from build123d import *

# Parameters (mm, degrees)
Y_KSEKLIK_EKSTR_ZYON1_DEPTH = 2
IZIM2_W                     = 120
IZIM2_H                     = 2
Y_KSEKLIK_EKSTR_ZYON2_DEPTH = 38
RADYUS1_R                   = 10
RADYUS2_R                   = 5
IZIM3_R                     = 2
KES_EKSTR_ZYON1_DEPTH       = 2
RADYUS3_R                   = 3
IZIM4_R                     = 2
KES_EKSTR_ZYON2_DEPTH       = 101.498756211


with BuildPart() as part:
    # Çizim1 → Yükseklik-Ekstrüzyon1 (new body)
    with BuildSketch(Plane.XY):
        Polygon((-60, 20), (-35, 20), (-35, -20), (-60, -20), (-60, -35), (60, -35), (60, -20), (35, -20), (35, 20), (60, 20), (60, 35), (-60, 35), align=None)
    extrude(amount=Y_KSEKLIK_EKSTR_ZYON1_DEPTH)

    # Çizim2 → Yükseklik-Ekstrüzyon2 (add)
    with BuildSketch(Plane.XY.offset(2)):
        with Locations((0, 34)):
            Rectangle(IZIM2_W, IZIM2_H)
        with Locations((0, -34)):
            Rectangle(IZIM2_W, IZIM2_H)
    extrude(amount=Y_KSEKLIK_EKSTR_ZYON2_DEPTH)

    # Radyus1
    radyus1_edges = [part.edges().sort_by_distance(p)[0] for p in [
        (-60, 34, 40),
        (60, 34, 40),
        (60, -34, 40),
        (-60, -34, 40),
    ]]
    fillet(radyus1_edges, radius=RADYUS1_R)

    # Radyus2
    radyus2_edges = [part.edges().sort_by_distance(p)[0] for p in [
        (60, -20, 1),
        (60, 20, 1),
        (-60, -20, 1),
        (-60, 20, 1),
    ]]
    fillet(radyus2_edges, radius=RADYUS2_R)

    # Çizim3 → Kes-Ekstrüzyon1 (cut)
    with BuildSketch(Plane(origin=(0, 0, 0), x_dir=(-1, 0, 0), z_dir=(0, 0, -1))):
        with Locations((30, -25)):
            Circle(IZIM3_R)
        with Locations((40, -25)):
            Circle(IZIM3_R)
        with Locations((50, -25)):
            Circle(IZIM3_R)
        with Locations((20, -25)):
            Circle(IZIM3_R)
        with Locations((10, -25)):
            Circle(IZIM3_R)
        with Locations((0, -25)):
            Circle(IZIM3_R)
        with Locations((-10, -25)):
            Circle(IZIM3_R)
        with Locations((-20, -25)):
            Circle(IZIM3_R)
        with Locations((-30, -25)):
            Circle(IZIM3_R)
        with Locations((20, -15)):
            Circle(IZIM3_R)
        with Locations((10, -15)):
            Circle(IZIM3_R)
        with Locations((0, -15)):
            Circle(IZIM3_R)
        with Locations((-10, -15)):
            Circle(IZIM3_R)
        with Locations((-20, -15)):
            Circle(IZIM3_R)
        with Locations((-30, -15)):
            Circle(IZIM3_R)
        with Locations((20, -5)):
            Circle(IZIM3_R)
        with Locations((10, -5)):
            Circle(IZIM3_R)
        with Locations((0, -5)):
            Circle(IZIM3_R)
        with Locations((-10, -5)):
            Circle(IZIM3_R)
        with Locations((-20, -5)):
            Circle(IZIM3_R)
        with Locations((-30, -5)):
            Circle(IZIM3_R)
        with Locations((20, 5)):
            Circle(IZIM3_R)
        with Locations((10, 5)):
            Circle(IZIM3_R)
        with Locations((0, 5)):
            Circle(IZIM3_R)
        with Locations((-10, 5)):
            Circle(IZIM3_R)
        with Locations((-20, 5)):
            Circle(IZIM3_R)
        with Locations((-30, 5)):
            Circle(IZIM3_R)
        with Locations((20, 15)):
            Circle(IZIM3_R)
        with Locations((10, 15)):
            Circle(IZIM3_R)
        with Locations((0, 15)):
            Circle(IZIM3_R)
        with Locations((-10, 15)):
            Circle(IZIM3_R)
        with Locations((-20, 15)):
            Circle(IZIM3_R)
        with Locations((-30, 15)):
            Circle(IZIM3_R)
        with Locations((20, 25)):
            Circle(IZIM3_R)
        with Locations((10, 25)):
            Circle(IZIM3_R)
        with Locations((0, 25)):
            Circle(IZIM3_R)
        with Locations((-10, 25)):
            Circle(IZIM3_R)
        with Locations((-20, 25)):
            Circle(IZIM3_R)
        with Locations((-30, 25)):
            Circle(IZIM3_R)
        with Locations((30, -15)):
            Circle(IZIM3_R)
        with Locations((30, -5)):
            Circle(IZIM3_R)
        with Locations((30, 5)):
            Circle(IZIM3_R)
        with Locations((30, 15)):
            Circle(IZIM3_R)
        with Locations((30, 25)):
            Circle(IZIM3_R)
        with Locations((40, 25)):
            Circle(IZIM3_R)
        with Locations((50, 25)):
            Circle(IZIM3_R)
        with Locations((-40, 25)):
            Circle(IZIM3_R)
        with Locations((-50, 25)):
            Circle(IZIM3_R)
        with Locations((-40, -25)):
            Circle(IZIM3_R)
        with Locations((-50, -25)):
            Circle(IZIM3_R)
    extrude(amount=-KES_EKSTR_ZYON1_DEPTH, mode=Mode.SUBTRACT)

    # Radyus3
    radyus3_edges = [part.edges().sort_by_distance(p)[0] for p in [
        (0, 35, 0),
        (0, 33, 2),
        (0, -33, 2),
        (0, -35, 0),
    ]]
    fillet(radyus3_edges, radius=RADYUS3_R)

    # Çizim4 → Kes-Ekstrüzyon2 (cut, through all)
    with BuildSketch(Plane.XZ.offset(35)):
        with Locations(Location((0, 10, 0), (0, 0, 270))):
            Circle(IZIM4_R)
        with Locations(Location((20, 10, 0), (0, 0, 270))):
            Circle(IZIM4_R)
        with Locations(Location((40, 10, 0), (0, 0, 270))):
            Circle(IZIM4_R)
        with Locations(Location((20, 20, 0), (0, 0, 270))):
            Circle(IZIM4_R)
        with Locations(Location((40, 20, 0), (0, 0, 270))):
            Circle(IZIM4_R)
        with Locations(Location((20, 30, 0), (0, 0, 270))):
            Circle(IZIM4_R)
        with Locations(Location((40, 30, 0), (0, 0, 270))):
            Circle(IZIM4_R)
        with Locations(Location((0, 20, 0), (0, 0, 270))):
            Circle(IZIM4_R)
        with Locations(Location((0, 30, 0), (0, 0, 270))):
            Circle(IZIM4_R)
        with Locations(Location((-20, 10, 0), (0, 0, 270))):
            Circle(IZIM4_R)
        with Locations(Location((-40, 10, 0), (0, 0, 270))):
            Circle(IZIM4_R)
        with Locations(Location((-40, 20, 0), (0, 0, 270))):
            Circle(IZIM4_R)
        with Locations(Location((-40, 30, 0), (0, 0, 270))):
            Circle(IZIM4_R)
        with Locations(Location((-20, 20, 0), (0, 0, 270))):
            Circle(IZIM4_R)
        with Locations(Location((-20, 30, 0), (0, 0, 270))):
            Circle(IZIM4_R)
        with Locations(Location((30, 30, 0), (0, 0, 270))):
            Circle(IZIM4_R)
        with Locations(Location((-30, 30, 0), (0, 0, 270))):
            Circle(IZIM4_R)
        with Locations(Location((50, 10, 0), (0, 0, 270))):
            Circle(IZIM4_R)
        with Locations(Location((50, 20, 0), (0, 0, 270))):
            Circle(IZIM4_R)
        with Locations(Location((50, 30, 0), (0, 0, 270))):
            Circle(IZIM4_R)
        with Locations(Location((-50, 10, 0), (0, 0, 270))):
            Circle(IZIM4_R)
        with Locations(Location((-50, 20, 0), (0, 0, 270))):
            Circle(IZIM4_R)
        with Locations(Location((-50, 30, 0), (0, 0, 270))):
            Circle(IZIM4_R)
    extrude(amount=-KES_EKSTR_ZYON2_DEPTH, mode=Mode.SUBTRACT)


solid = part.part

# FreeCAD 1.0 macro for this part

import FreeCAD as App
import Part
import Sketcher
from FreeCAD import Vector


def edges_at(feature, points):
    """Names of the edges that pass closest to the given points."""
    edges = feature.Shape.Edges
    near = lambda p: min(range(len(edges)), key=lambda i: edges[i].distToShape(Part.Vertex(*p))[0])
    return sorted({f"Edge{near(p) + 1}" for p in points})

doc = App.newDocument("Part")
params = doc.addObject("Spreadsheet::Sheet", "Params")
for row, (alias, value) in enumerate([
    ("sketch1_width", "25 mm"),
    ("sketch1_width2", "120 mm"),
    ("sketch1_height", "40 mm"),
    ("sketch1_height2", "15 mm"),
    ("pad1_length", "2 mm"),
    ("sketch2_width", "120 mm"),
    ("sketch2_height", "2 mm"),
    ("pad2_length", "38 mm"),
    ("fillet_radius", "10 mm"),
    ("fillet2_radius", "5 mm"),
    ("sketch3_diameter", "4 mm"),
    ("pocket1_length", "2 mm"),
    ("fillet3_radius", "3 mm"),
    ("sketch4_diameter", "4 mm"),
], start=1):
    params.set(f"A{row}", alias)
    params.set(f"B{row}", "=" + value)
    params.setAlias(f"B{row}", alias)

body = doc.addObject("PartDesign::Body", "Body")

sketch1 = body.newObject("Sketcher::SketchObject", "Sketch")
sketch1.AttachmentSupport = (doc.getObject("XY_Plane"), [""])
sketch1.MapMode = "FlatFace"
sketch1.addGeometry(Part.LineSegment(Vector(-60, 20, 0), Vector(-35, 20, 0)), False)
sketch1.addGeometry(Part.LineSegment(Vector(-35, 20, 0), Vector(-35, -20, 0)), False)
sketch1.addGeometry(Part.LineSegment(Vector(-35, -20, 0), Vector(-60, -20, 0)), False)
sketch1.addGeometry(Part.LineSegment(Vector(-60, -20, 0), Vector(-60, -35, 0)), False)
sketch1.addGeometry(Part.LineSegment(Vector(-60, -35, 0), Vector(60, -35, 0)), False)
sketch1.addGeometry(Part.LineSegment(Vector(60, -35, 0), Vector(60, -20, 0)), False)
sketch1.addGeometry(Part.LineSegment(Vector(60, -20, 0), Vector(35, -20, 0)), False)
sketch1.addGeometry(Part.LineSegment(Vector(35, -20, 0), Vector(35, 20, 0)), False)
sketch1.addGeometry(Part.LineSegment(Vector(35, 20, 0), Vector(60, 20, 0)), False)
sketch1.addGeometry(Part.LineSegment(Vector(60, 20, 0), Vector(60, 35, 0)), False)
sketch1.addGeometry(Part.LineSegment(Vector(60, 35, 0), Vector(-60, 35, 0)), False)
sketch1.addGeometry(Part.LineSegment(Vector(-60, 35, 0), Vector(-60, 20, 0)), False)
sketch1.addConstraint(Sketcher.Constraint("Coincident", 0, 2, 1, 1))
sketch1.addConstraint(Sketcher.Constraint("Coincident", 1, 2, 2, 1))
sketch1.addConstraint(Sketcher.Constraint("Coincident", 2, 2, 3, 1))
sketch1.addConstraint(Sketcher.Constraint("Coincident", 3, 2, 4, 1))
sketch1.addConstraint(Sketcher.Constraint("Coincident", 4, 2, 5, 1))
sketch1.addConstraint(Sketcher.Constraint("Coincident", 5, 2, 6, 1))
sketch1.addConstraint(Sketcher.Constraint("Coincident", 6, 2, 7, 1))
sketch1.addConstraint(Sketcher.Constraint("Coincident", 7, 2, 8, 1))
sketch1.addConstraint(Sketcher.Constraint("Coincident", 8, 2, 9, 1))
sketch1.addConstraint(Sketcher.Constraint("Coincident", 9, 2, 10, 1))
sketch1.addConstraint(Sketcher.Constraint("Coincident", 10, 2, 11, 1))
sketch1.addConstraint(Sketcher.Constraint("Coincident", 11, 2, 0, 1))
sketch1.addConstraint(Sketcher.Constraint("Horizontal", 0))
sketch1.addConstraint(Sketcher.Constraint("Vertical", 1))
sketch1.addConstraint(Sketcher.Constraint("Horizontal", 2))
sketch1.addConstraint(Sketcher.Constraint("Vertical", 3))
sketch1.addConstraint(Sketcher.Constraint("Horizontal", 4))
sketch1.addConstraint(Sketcher.Constraint("Vertical", 5))
sketch1.addConstraint(Sketcher.Constraint("Horizontal", 6))
sketch1.addConstraint(Sketcher.Constraint("Vertical", 7))
sketch1.addConstraint(Sketcher.Constraint("Horizontal", 8))
sketch1.addConstraint(Sketcher.Constraint("Vertical", 9))
sketch1.addConstraint(Sketcher.Constraint("Horizontal", 10))
sketch1.addConstraint(Sketcher.Constraint("Vertical", 11))
sketch1.addConstraint(Sketcher.Constraint("Symmetric", 0, 2, 6, 2, -1, 1))
sketch1.addConstraint(Sketcher.Constraint("Symmetric", 2, 2, 8, 2, -1, 1))
sketch1.addConstraint(Sketcher.Constraint("Symmetric", 4, 2, 10, 2, -1, 1))
sketch1.addConstraint(Sketcher.Constraint("Symmetric", 2, 2, 5, 2, -2))
sketch1.addConstraint(Sketcher.Constraint("DistanceX", 0, 1, 0, 2, 25.0))
sketch1.addConstraint(Sketcher.Constraint("DistanceX", 4, 1, 4, 2, 120.0))
sketch1.addConstraint(Sketcher.Constraint("DistanceY", 1, 2, 1, 1, 40.0))
sketch1.addConstraint(Sketcher.Constraint("DistanceY", 3, 2, 3, 1, 15.0))
sketch1.setExpression("Constraints[28]", "Params.sketch1_width")
sketch1.setExpression("Constraints[29]", "Params.sketch1_width2")
sketch1.setExpression("Constraints[30]", "Params.sketch1_height")
sketch1.setExpression("Constraints[31]", "Params.sketch1_height2")
pad1 = body.newObject("PartDesign::Pad", "Pad")
pad1.Profile = sketch1
pad1.setExpression("Length", "Params.pad1_length")

sketch2 = body.newObject("Sketcher::SketchObject", "Sketch001")
sketch2.AttachmentSupport = (doc.getObject("XY_Plane"), [""])
sketch2.MapMode = "FlatFace"
sketch2.AttachmentOffset = App.Placement(Vector(0, 0, 2), App.Rotation())
sketch2.addGeometry(Part.LineSegment(Vector(-60, 35, 0), Vector(-60, 33, 0)), False)
sketch2.addGeometry(Part.LineSegment(Vector(-60, 33, 0), Vector(60, 33, 0)), False)
sketch2.addGeometry(Part.LineSegment(Vector(60, 33, 0), Vector(60, 35, 0)), False)
sketch2.addGeometry(Part.LineSegment(Vector(60, 35, 0), Vector(-60, 35, 0)), False)
sketch2.addGeometry(Part.LineSegment(Vector(-60, -33, 0), Vector(-60, -35, 0)), False)
sketch2.addGeometry(Part.LineSegment(Vector(-60, -35, 0), Vector(60, -35, 0)), False)
sketch2.addGeometry(Part.LineSegment(Vector(60, -35, 0), Vector(60, -33, 0)), False)
sketch2.addGeometry(Part.LineSegment(Vector(60, -33, 0), Vector(-60, -33, 0)), False)
sketch2.addConstraint(Sketcher.Constraint("Coincident", 0, 2, 1, 1))
sketch2.addConstraint(Sketcher.Constraint("Coincident", 1, 2, 2, 1))
sketch2.addConstraint(Sketcher.Constraint("Coincident", 2, 2, 3, 1))
sketch2.addConstraint(Sketcher.Constraint("Coincident", 3, 2, 0, 1))
sketch2.addConstraint(Sketcher.Constraint("Coincident", 4, 2, 5, 1))
sketch2.addConstraint(Sketcher.Constraint("Coincident", 5, 2, 6, 1))
sketch2.addConstraint(Sketcher.Constraint("Coincident", 6, 2, 7, 1))
sketch2.addConstraint(Sketcher.Constraint("Coincident", 7, 2, 4, 1))
sketch2.addConstraint(Sketcher.Constraint("Vertical", 0))
sketch2.addConstraint(Sketcher.Constraint("Horizontal", 1))
sketch2.addConstraint(Sketcher.Constraint("Vertical", 2))
sketch2.addConstraint(Sketcher.Constraint("Horizontal", 3))
sketch2.addConstraint(Sketcher.Constraint("Vertical", 4))
sketch2.addConstraint(Sketcher.Constraint("Horizontal", 5))
sketch2.addConstraint(Sketcher.Constraint("Vertical", 6))
sketch2.addConstraint(Sketcher.Constraint("Horizontal", 7))
sketch2.addConstraint(Sketcher.Constraint("Symmetric", 2, 2, 4, 2, -1, 1))
sketch2.addConstraint(Sketcher.Constraint("Symmetric", 0, 2, 6, 2, -1, 1))
sketch2.addConstraint(Sketcher.Constraint("Vertical", 3, 2, 4, 2))
sketch2.addConstraint(Sketcher.Constraint("DistanceX", 1, 1, 1, 2, 120.0))
sketch2.addConstraint(Sketcher.Constraint("DistanceY", 0, 2, 0, 1, 2.0))
sketch2.addConstraint(Sketcher.Constraint("DistanceY", -1, 1, 0, 2, 33.0))
sketch2.setExpression("Constraints[19]", "Params.sketch2_width")
sketch2.setExpression("Constraints[20]", "Params.sketch2_height")
pad2 = body.newObject("PartDesign::Pad", "Pad001")
pad2.Profile = sketch2
pad2.setExpression("Length", "Params.pad2_length")
doc.recompute()

fillet = body.newObject("PartDesign::Fillet", "Fillet")
fillet.Base = (pad2, edges_at(pad2, [
    (-60, 34, 40),
    (60, 34, 40),
    (60, -34, 40),
    (-60, -34, 40),
]))
fillet.setExpression("Radius", "Params.fillet_radius")
doc.recompute()

fillet2 = body.newObject("PartDesign::Fillet", "Fillet001")
fillet2.Base = (fillet, edges_at(fillet, [
    (60, -20, 1),
    (60, 20, 1),
    (-60, -20, 1),
    (-60, 20, 1),
]))
fillet2.setExpression("Radius", "Params.fillet2_radius")

sketch3 = body.newObject("Sketcher::SketchObject", "Sketch002")
sketch3.AttachmentSupport = (doc.getObject("XY_Plane"), [""])
sketch3.MapMode = "FlatFace"
sketch3.addGeometry(Part.Circle(Vector(-30, -25, 0), Vector(0, 0, 1), 2), False)
sketch3.addGeometry(Part.Circle(Vector(-40, -25, 0), Vector(0, 0, 1), 2), False)
sketch3.addGeometry(Part.Circle(Vector(-50, -25, 0), Vector(0, 0, 1), 2), False)
sketch3.addGeometry(Part.Circle(Vector(-20, -25, 0), Vector(0, 0, 1), 2), False)
sketch3.addGeometry(Part.Circle(Vector(-10, -25, 0), Vector(0, 0, 1), 2), False)
sketch3.addGeometry(Part.Circle(Vector(0, -25, 0), Vector(0, 0, 1), 2), False)
sketch3.addGeometry(Part.Circle(Vector(10, -25, 0), Vector(0, 0, 1), 2), False)
sketch3.addGeometry(Part.Circle(Vector(20, -25, 0), Vector(0, 0, 1), 2), False)
sketch3.addGeometry(Part.Circle(Vector(30, -25, 0), Vector(0, 0, 1), 2), False)
sketch3.addGeometry(Part.Circle(Vector(-20, -15, 0), Vector(0, 0, 1), 2), False)
sketch3.addGeometry(Part.Circle(Vector(-10, -15, 0), Vector(0, 0, 1), 2), False)
sketch3.addGeometry(Part.Circle(Vector(0, -15, 0), Vector(0, 0, 1), 2), False)
sketch3.addGeometry(Part.Circle(Vector(10, -15, 0), Vector(0, 0, 1), 2), False)
sketch3.addGeometry(Part.Circle(Vector(20, -15, 0), Vector(0, 0, 1), 2), False)
sketch3.addGeometry(Part.Circle(Vector(30, -15, 0), Vector(0, 0, 1), 2), False)
sketch3.addGeometry(Part.Circle(Vector(-20, -5, 0), Vector(0, 0, 1), 2), False)
sketch3.addGeometry(Part.Circle(Vector(-10, -5, 0), Vector(0, 0, 1), 2), False)
sketch3.addGeometry(Part.Circle(Vector(0, -5, 0), Vector(0, 0, 1), 2), False)
sketch3.addGeometry(Part.Circle(Vector(10, -5, 0), Vector(0, 0, 1), 2), False)
sketch3.addGeometry(Part.Circle(Vector(20, -5, 0), Vector(0, 0, 1), 2), False)
sketch3.addGeometry(Part.Circle(Vector(30, -5, 0), Vector(0, 0, 1), 2), False)
sketch3.addGeometry(Part.Circle(Vector(-20, 5, 0), Vector(0, 0, 1), 2), False)
sketch3.addGeometry(Part.Circle(Vector(-10, 5, 0), Vector(0, 0, 1), 2), False)
sketch3.addGeometry(Part.Circle(Vector(0, 5, 0), Vector(0, 0, 1), 2), False)
sketch3.addGeometry(Part.Circle(Vector(10, 5, 0), Vector(0, 0, 1), 2), False)
sketch3.addGeometry(Part.Circle(Vector(20, 5, 0), Vector(0, 0, 1), 2), False)
sketch3.addGeometry(Part.Circle(Vector(30, 5, 0), Vector(0, 0, 1), 2), False)
sketch3.addGeometry(Part.Circle(Vector(-20, 15, 0), Vector(0, 0, 1), 2), False)
sketch3.addGeometry(Part.Circle(Vector(-10, 15, 0), Vector(0, 0, 1), 2), False)
sketch3.addGeometry(Part.Circle(Vector(0, 15, 0), Vector(0, 0, 1), 2), False)
sketch3.addGeometry(Part.Circle(Vector(10, 15, 0), Vector(0, 0, 1), 2), False)
sketch3.addGeometry(Part.Circle(Vector(20, 15, 0), Vector(0, 0, 1), 2), False)
sketch3.addGeometry(Part.Circle(Vector(30, 15, 0), Vector(0, 0, 1), 2), False)
sketch3.addGeometry(Part.Circle(Vector(-20, 25, 0), Vector(0, 0, 1), 2), False)
sketch3.addGeometry(Part.Circle(Vector(-10, 25, 0), Vector(0, 0, 1), 2), False)
sketch3.addGeometry(Part.Circle(Vector(0, 25, 0), Vector(0, 0, 1), 2), False)
sketch3.addGeometry(Part.Circle(Vector(10, 25, 0), Vector(0, 0, 1), 2), False)
sketch3.addGeometry(Part.Circle(Vector(20, 25, 0), Vector(0, 0, 1), 2), False)
sketch3.addGeometry(Part.Circle(Vector(30, 25, 0), Vector(0, 0, 1), 2), False)
sketch3.addGeometry(Part.Circle(Vector(-30, -15, 0), Vector(0, 0, 1), 2), False)
sketch3.addGeometry(Part.Circle(Vector(-30, -5, 0), Vector(0, 0, 1), 2), False)
sketch3.addGeometry(Part.Circle(Vector(-30, 5, 0), Vector(0, 0, 1), 2), False)
sketch3.addGeometry(Part.Circle(Vector(-30, 15, 0), Vector(0, 0, 1), 2), False)
sketch3.addGeometry(Part.Circle(Vector(-30, 25, 0), Vector(0, 0, 1), 2), False)
sketch3.addGeometry(Part.Circle(Vector(-40, 25, 0), Vector(0, 0, 1), 2), False)
sketch3.addGeometry(Part.Circle(Vector(-50, 25, 0), Vector(0, 0, 1), 2), False)
sketch3.addGeometry(Part.Circle(Vector(40, 25, 0), Vector(0, 0, 1), 2), False)
sketch3.addGeometry(Part.Circle(Vector(50, 25, 0), Vector(0, 0, 1), 2), False)
sketch3.addGeometry(Part.Circle(Vector(40, -25, 0), Vector(0, 0, 1), 2), False)
sketch3.addGeometry(Part.Circle(Vector(50, -25, 0), Vector(0, 0, 1), 2), False)
sketch3.addConstraint(Sketcher.Constraint("Equal", 0, 1))
sketch3.addConstraint(Sketcher.Constraint("Equal", 1, 2))
sketch3.addConstraint(Sketcher.Constraint("Equal", 2, 3))
sketch3.addConstraint(Sketcher.Constraint("Equal", 3, 4))
sketch3.addConstraint(Sketcher.Constraint("Equal", 4, 5))
sketch3.addConstraint(Sketcher.Constraint("Equal", 5, 6))
sketch3.addConstraint(Sketcher.Constraint("Equal", 6, 7))
sketch3.addConstraint(Sketcher.Constraint("Equal", 7, 8))
sketch3.addConstraint(Sketcher.Constraint("Equal", 8, 9))
sketch3.addConstraint(Sketcher.Constraint("Equal", 9, 10))
sketch3.addConstraint(Sketcher.Constraint("Equal", 10, 11))
sketch3.addConstraint(Sketcher.Constraint("Equal", 11, 12))
sketch3.addConstraint(Sketcher.Constraint("Equal", 12, 13))
sketch3.addConstraint(Sketcher.Constraint("Equal", 13, 14))
sketch3.addConstraint(Sketcher.Constraint("Equal", 14, 15))
sketch3.addConstraint(Sketcher.Constraint("Equal", 15, 16))
sketch3.addConstraint(Sketcher.Constraint("Equal", 16, 17))
sketch3.addConstraint(Sketcher.Constraint("Equal", 17, 18))
sketch3.addConstraint(Sketcher.Constraint("Equal", 18, 19))
sketch3.addConstraint(Sketcher.Constraint("Equal", 19, 20))
sketch3.addConstraint(Sketcher.Constraint("Equal", 20, 21))
sketch3.addConstraint(Sketcher.Constraint("Equal", 21, 22))
sketch3.addConstraint(Sketcher.Constraint("Equal", 22, 23))
sketch3.addConstraint(Sketcher.Constraint("Equal", 23, 24))
sketch3.addConstraint(Sketcher.Constraint("Equal", 24, 25))
sketch3.addConstraint(Sketcher.Constraint("Equal", 25, 26))
sketch3.addConstraint(Sketcher.Constraint("Equal", 26, 27))
sketch3.addConstraint(Sketcher.Constraint("Equal", 27, 28))
sketch3.addConstraint(Sketcher.Constraint("Equal", 28, 29))
sketch3.addConstraint(Sketcher.Constraint("Equal", 29, 30))
sketch3.addConstraint(Sketcher.Constraint("Equal", 30, 31))
sketch3.addConstraint(Sketcher.Constraint("Equal", 31, 32))
sketch3.addConstraint(Sketcher.Constraint("Equal", 32, 33))
sketch3.addConstraint(Sketcher.Constraint("Equal", 33, 34))
sketch3.addConstraint(Sketcher.Constraint("Equal", 34, 35))
sketch3.addConstraint(Sketcher.Constraint("Equal", 35, 36))
sketch3.addConstraint(Sketcher.Constraint("Equal", 36, 37))
sketch3.addConstraint(Sketcher.Constraint("Equal", 37, 38))
sketch3.addConstraint(Sketcher.Constraint("Equal", 38, 39))
sketch3.addConstraint(Sketcher.Constraint("Equal", 39, 40))
sketch3.addConstraint(Sketcher.Constraint("Equal", 40, 41))
sketch3.addConstraint(Sketcher.Constraint("Equal", 41, 42))
sketch3.addConstraint(Sketcher.Constraint("Equal", 42, 43))
sketch3.addConstraint(Sketcher.Constraint("Equal", 43, 44))
sketch3.addConstraint(Sketcher.Constraint("Equal", 44, 45))
sketch3.addConstraint(Sketcher.Constraint("Equal", 45, 46))
sketch3.addConstraint(Sketcher.Constraint("Equal", 46, 47))
sketch3.addConstraint(Sketcher.Constraint("Equal", 47, 48))
sketch3.addConstraint(Sketcher.Constraint("Equal", 48, 49))
sketch3.addConstraint(Sketcher.Constraint("Symmetric", 19, 3, 21, 3, -1, 1))
sketch3.addConstraint(Sketcher.Constraint("Symmetric", 18, 3, 22, 3, -1, 1))
sketch3.addConstraint(Sketcher.Constraint("Symmetric", 17, 3, 23, 3, -1, 1))
sketch3.addConstraint(Sketcher.Constraint("Symmetric", 16, 3, 24, 3, -1, 1))
sketch3.addConstraint(Sketcher.Constraint("Symmetric", 15, 3, 25, 3, -1, 1))
sketch3.addConstraint(Sketcher.Constraint("Symmetric", 13, 3, 27, 3, -1, 1))
sketch3.addConstraint(Sketcher.Constraint("Symmetric", 12, 3, 28, 3, -1, 1))
sketch3.addConstraint(Sketcher.Constraint("Symmetric", 11, 3, 29, 3, -1, 1))
sketch3.addConstraint(Sketcher.Constraint("Symmetric", 10, 3, 30, 3, -1, 1))
sketch3.addConstraint(Sketcher.Constraint("Symmetric", 9, 3, 31, 3, -1, 1))
sketch3.addConstraint(Sketcher.Constraint("Symmetric", 7, 3, 33, 3, -1, 1))
sketch3.addConstraint(Sketcher.Constraint("Symmetric", 6, 3, 34, 3, -1, 1))
sketch3.addConstraint(Sketcher.Constraint("Symmetric", 5, 3, 35, 3, -1, 1))
sketch3.addConstraint(Sketcher.Constraint("Symmetric", 4, 3, 36, 3, -1, 1))
sketch3.addConstraint(Sketcher.Constraint("Symmetric", 3, 3, 37, 3, -1, 1))
sketch3.addConstraint(Sketcher.Constraint("Symmetric", 0, 3, 38, 3, -1, 1))
sketch3.addConstraint(Sketcher.Constraint("Symmetric", 32, 3, 39, 3, -1, 1))
sketch3.addConstraint(Sketcher.Constraint("Symmetric", 26, 3, 40, 3, -1, 1))
sketch3.addConstraint(Sketcher.Constraint("Symmetric", 20, 3, 41, 3, -1, 1))
sketch3.addConstraint(Sketcher.Constraint("Symmetric", 14, 3, 42, 3, -1, 1))
sketch3.addConstraint(Sketcher.Constraint("Symmetric", 8, 3, 43, 3, -1, 1))
sketch3.addConstraint(Sketcher.Constraint("Symmetric", 1, 3, 46, 3, -1, 1))
sketch3.addConstraint(Sketcher.Constraint("Symmetric", 2, 3, 47, 3, -1, 1))
sketch3.addConstraint(Sketcher.Constraint("Symmetric", 44, 3, 48, 3, -1, 1))
sketch3.addConstraint(Sketcher.Constraint("Symmetric", 45, 3, 49, 3, -1, 1))
sketch3.addConstraint(Sketcher.Constraint("Symmetric", 4, 3, 6, 3, -2))
sketch3.addConstraint(Sketcher.Constraint("Symmetric", 3, 3, 7, 3, -2))
sketch3.addConstraint(Sketcher.Constraint("Symmetric", 0, 3, 8, 3, -2))
sketch3.addConstraint(Sketcher.Constraint("Symmetric", 10, 3, 12, 3, -2))
sketch3.addConstraint(Sketcher.Constraint("Symmetric", 9, 3, 13, 3, -2))
sketch3.addConstraint(Sketcher.Constraint("Symmetric", 16, 3, 18, 3, -2))
sketch3.addConstraint(Sketcher.Constraint("Symmetric", 15, 3, 19, 3, -2))
sketch3.addConstraint(Sketcher.Constraint("Symmetric", 14, 3, 39, 3, -2))
sketch3.addConstraint(Sketcher.Constraint("Symmetric", 20, 3, 40, 3, -2))
sketch3.addConstraint(Sketcher.Constraint("Symmetric", 44, 3, 46, 3, -2))
sketch3.addConstraint(Sketcher.Constraint("Symmetric", 45, 3, 47, 3, -2))
sketch3.addConstraint(Sketcher.Constraint("PointOnObject", 5, 3, -2))
sketch3.addConstraint(Sketcher.Constraint("PointOnObject", 11, 3, -2))
sketch3.addConstraint(Sketcher.Constraint("PointOnObject", 17, 3, -2))
sketch3.addConstraint(Sketcher.Constraint("Horizontal", 0, 3, 1, 3))
sketch3.addConstraint(Sketcher.Constraint("Horizontal", 1, 3, 2, 3))
sketch3.addConstraint(Sketcher.Constraint("Horizontal", 2, 3, 3, 3))
sketch3.addConstraint(Sketcher.Constraint("Horizontal", 3, 3, 4, 3))
sketch3.addConstraint(Sketcher.Constraint("Horizontal", 4, 3, 5, 3))
sketch3.addConstraint(Sketcher.Constraint("Horizontal", 9, 3, 10, 3))
sketch3.addConstraint(Sketcher.Constraint("Horizontal", 10, 3, 11, 3))
sketch3.addConstraint(Sketcher.Constraint("Horizontal", 13, 3, 14, 3))
sketch3.addConstraint(Sketcher.Constraint("Horizontal", 15, 3, 16, 3))
sketch3.addConstraint(Sketcher.Constraint("Horizontal", 16, 3, 17, 3))
sketch3.addConstraint(Sketcher.Constraint("Horizontal", 19, 3, 20, 3))
sketch3.addConstraint(Sketcher.Constraint("Vertical", 3, 3, 9, 3))
sketch3.addConstraint(Sketcher.Constraint("Vertical", 4, 3, 10, 3))
sketch3.addConstraint(Sketcher.Constraint("Vertical", 8, 3, 14, 3))
sketch3.addConstraint(Sketcher.Constraint("Vertical", 9, 3, 15, 3))
sketch3.addConstraint(Sketcher.Constraint("Vertical", 10, 3, 16, 3))
sketch3.addConstraint(Sketcher.Constraint("Vertical", 14, 3, 20, 3))
sketch3.addConstraint(Sketcher.Constraint("Diameter", 0, 4.0))
sketch3.addConstraint(Sketcher.Constraint("DistanceX", 0, 3, -1, 1, 30.0))
sketch3.addConstraint(Sketcher.Constraint("DistanceY", 0, 3, -1, 1, 25.0))
sketch3.addConstraint(Sketcher.Constraint("DistanceX", 1, 3, -1, 1, 40.0))
sketch3.addConstraint(Sketcher.Constraint("DistanceX", 2, 3, -1, 1, 50.0))
sketch3.addConstraint(Sketcher.Constraint("DistanceX", 3, 3, -1, 1, 20.0))
sketch3.addConstraint(Sketcher.Constraint("DistanceX", 4, 3, -1, 1, 10.0))
sketch3.addConstraint(Sketcher.Constraint("DistanceY", 9, 3, -1, 1, 15.0))
sketch3.addConstraint(Sketcher.Constraint("DistanceY", 15, 3, -1, 1, 5.0))
sketch3.setExpression("Constraints[105]", "Params.sketch3_diameter")
pocket1 = body.newObject("PartDesign::Pocket", "Pocket")
pocket1.Profile = sketch3
pocket1.setExpression("Length", "Params.pocket1_length")
pocket1.Reversed = True
doc.recompute()

fillet3 = body.newObject("PartDesign::Fillet", "Fillet002")
fillet3.Base = (pocket1, edges_at(pocket1, [
    (0, 35, 0),
    (0, 33, 2),
    (0, -33, 2),
    (0, -35, 0),
]))
fillet3.setExpression("Radius", "Params.fillet3_radius")

sketch4 = body.newObject("Sketcher::SketchObject", "Sketch003")
sketch4.AttachmentSupport = (doc.getObject("XZ_Plane"), [""])
sketch4.MapMode = "FlatFace"
sketch4.AttachmentOffset = App.Placement(Vector(0, 0, 35), App.Rotation())
sketch4.addGeometry(Part.Circle(Vector(0, 10, 0), Vector(0, 0, 1), 2), False)
sketch4.addGeometry(Part.Circle(Vector(20, 10, 0), Vector(0, 0, 1), 2), False)
sketch4.addGeometry(Part.Circle(Vector(40, 10, 0), Vector(0, 0, 1), 2), False)
sketch4.addGeometry(Part.Circle(Vector(20, 20, 0), Vector(0, 0, 1), 2), False)
sketch4.addGeometry(Part.Circle(Vector(40, 20, 0), Vector(0, 0, 1), 2), False)
sketch4.addGeometry(Part.Circle(Vector(20, 30, 0), Vector(0, 0, 1), 2), False)
sketch4.addGeometry(Part.Circle(Vector(40, 30, 0), Vector(0, 0, 1), 2), False)
sketch4.addGeometry(Part.Circle(Vector(0, 20, 0), Vector(0, 0, 1), 2), False)
sketch4.addGeometry(Part.Circle(Vector(0, 30, 0), Vector(0, 0, 1), 2), False)
sketch4.addGeometry(Part.Circle(Vector(-20, 10, 0), Vector(0, 0, 1), 2), False)
sketch4.addGeometry(Part.Circle(Vector(-40, 10, 0), Vector(0, 0, 1), 2), False)
sketch4.addGeometry(Part.Circle(Vector(-40, 20, 0), Vector(0, 0, 1), 2), False)
sketch4.addGeometry(Part.Circle(Vector(-40, 30, 0), Vector(0, 0, 1), 2), False)
sketch4.addGeometry(Part.Circle(Vector(-20, 20, 0), Vector(0, 0, 1), 2), False)
sketch4.addGeometry(Part.Circle(Vector(-20, 30, 0), Vector(0, 0, 1), 2), False)
sketch4.addGeometry(Part.Circle(Vector(30, 30, 0), Vector(0, 0, 1), 2), False)
sketch4.addGeometry(Part.Circle(Vector(-30, 30, 0), Vector(0, 0, 1), 2), False)
sketch4.addGeometry(Part.Circle(Vector(50, 10, 0), Vector(0, 0, 1), 2), False)
sketch4.addGeometry(Part.Circle(Vector(50, 20, 0), Vector(0, 0, 1), 2), False)
sketch4.addGeometry(Part.Circle(Vector(50, 30, 0), Vector(0, 0, 1), 2), False)
sketch4.addGeometry(Part.Circle(Vector(-50, 10, 0), Vector(0, 0, 1), 2), False)
sketch4.addGeometry(Part.Circle(Vector(-50, 20, 0), Vector(0, 0, 1), 2), False)
sketch4.addGeometry(Part.Circle(Vector(-50, 30, 0), Vector(0, 0, 1), 2), False)
sketch4.addConstraint(Sketcher.Constraint("Equal", 0, 1))
sketch4.addConstraint(Sketcher.Constraint("Equal", 1, 2))
sketch4.addConstraint(Sketcher.Constraint("Equal", 2, 3))
sketch4.addConstraint(Sketcher.Constraint("Equal", 3, 4))
sketch4.addConstraint(Sketcher.Constraint("Equal", 4, 5))
sketch4.addConstraint(Sketcher.Constraint("Equal", 5, 6))
sketch4.addConstraint(Sketcher.Constraint("Equal", 6, 7))
sketch4.addConstraint(Sketcher.Constraint("Equal", 7, 8))
sketch4.addConstraint(Sketcher.Constraint("Equal", 8, 9))
sketch4.addConstraint(Sketcher.Constraint("Equal", 9, 10))
sketch4.addConstraint(Sketcher.Constraint("Equal", 10, 11))
sketch4.addConstraint(Sketcher.Constraint("Equal", 11, 12))
sketch4.addConstraint(Sketcher.Constraint("Equal", 12, 13))
sketch4.addConstraint(Sketcher.Constraint("Equal", 13, 14))
sketch4.addConstraint(Sketcher.Constraint("Equal", 14, 15))
sketch4.addConstraint(Sketcher.Constraint("Equal", 15, 16))
sketch4.addConstraint(Sketcher.Constraint("Equal", 16, 17))
sketch4.addConstraint(Sketcher.Constraint("Equal", 17, 18))
sketch4.addConstraint(Sketcher.Constraint("Equal", 18, 19))
sketch4.addConstraint(Sketcher.Constraint("Equal", 19, 20))
sketch4.addConstraint(Sketcher.Constraint("Equal", 20, 21))
sketch4.addConstraint(Sketcher.Constraint("Equal", 21, 22))
sketch4.addConstraint(Sketcher.Constraint("Symmetric", 1, 3, 9, 3, -2))
sketch4.addConstraint(Sketcher.Constraint("Symmetric", 2, 3, 10, 3, -2))
sketch4.addConstraint(Sketcher.Constraint("Symmetric", 4, 3, 11, 3, -2))
sketch4.addConstraint(Sketcher.Constraint("Symmetric", 6, 3, 12, 3, -2))
sketch4.addConstraint(Sketcher.Constraint("Symmetric", 3, 3, 13, 3, -2))
sketch4.addConstraint(Sketcher.Constraint("Symmetric", 5, 3, 14, 3, -2))
sketch4.addConstraint(Sketcher.Constraint("Symmetric", 15, 3, 16, 3, -2))
sketch4.addConstraint(Sketcher.Constraint("Symmetric", 17, 3, 20, 3, -2))
sketch4.addConstraint(Sketcher.Constraint("Symmetric", 18, 3, 21, 3, -2))
sketch4.addConstraint(Sketcher.Constraint("Symmetric", 19, 3, 22, 3, -2))
sketch4.addConstraint(Sketcher.Constraint("PointOnObject", 0, 3, -2))
sketch4.addConstraint(Sketcher.Constraint("PointOnObject", 7, 3, -2))
sketch4.addConstraint(Sketcher.Constraint("PointOnObject", 8, 3, -2))
sketch4.addConstraint(Sketcher.Constraint("Horizontal", 0, 3, 1, 3))
sketch4.addConstraint(Sketcher.Constraint("Horizontal", 1, 3, 2, 3))
sketch4.addConstraint(Sketcher.Constraint("Horizontal", 3, 3, 4, 3))
sketch4.addConstraint(Sketcher.Constraint("Horizontal", 5, 3, 6, 3))
sketch4.addConstraint(Sketcher.Constraint("Horizontal", 4, 3, 7, 3))
sketch4.addConstraint(Sketcher.Constraint("Horizontal", 6, 3, 8, 3))
sketch4.addConstraint(Sketcher.Constraint("Horizontal", 14, 3, 15, 3))
sketch4.addConstraint(Sketcher.Constraint("Horizontal", 10, 3, 17, 3))
sketch4.addConstraint(Sketcher.Constraint("Horizontal", 13, 3, 18, 3))
sketch4.addConstraint(Sketcher.Constraint("Horizontal", 16, 3, 19, 3))
sketch4.addConstraint(Sketcher.Constraint("Vertical", 1, 3, 3, 3))
sketch4.addConstraint(Sketcher.Constraint("Vertical", 2, 3, 4, 3))
sketch4.addConstraint(Sketcher.Constraint("Vertical", 3, 3, 5, 3))
sketch4.addConstraint(Sketcher.Constraint("Vertical", 4, 3, 6, 3))
sketch4.addConstraint(Sketcher.Constraint("Vertical", 17, 3, 18, 3))
sketch4.addConstraint(Sketcher.Constraint("Vertical", 18, 3, 19, 3))
sketch4.addConstraint(Sketcher.Constraint("Diameter", 0, 4.0))
sketch4.addConstraint(Sketcher.Constraint("DistanceY", -1, 1, 0, 3, 10.0))
sketch4.addConstraint(Sketcher.Constraint("DistanceX", -1, 1, 1, 3, 20.0))
sketch4.addConstraint(Sketcher.Constraint("DistanceX", -1, 1, 2, 3, 40.0))
sketch4.addConstraint(Sketcher.Constraint("DistanceY", -1, 1, 3, 3, 20.0))
sketch4.addConstraint(Sketcher.Constraint("DistanceY", -1, 1, 5, 3, 30.0))
sketch4.addConstraint(Sketcher.Constraint("DistanceX", -1, 1, 15, 3, 30.0))
sketch4.addConstraint(Sketcher.Constraint("DistanceX", -1, 1, 17, 3, 50.0))
sketch4.setExpression("Constraints[51]", "Params.sketch4_diameter")
pocket2 = body.newObject("PartDesign::Pocket", "Pocket001")
pocket2.Profile = sketch4
pocket2.Type = "ThroughAll"

doc.recompute()
